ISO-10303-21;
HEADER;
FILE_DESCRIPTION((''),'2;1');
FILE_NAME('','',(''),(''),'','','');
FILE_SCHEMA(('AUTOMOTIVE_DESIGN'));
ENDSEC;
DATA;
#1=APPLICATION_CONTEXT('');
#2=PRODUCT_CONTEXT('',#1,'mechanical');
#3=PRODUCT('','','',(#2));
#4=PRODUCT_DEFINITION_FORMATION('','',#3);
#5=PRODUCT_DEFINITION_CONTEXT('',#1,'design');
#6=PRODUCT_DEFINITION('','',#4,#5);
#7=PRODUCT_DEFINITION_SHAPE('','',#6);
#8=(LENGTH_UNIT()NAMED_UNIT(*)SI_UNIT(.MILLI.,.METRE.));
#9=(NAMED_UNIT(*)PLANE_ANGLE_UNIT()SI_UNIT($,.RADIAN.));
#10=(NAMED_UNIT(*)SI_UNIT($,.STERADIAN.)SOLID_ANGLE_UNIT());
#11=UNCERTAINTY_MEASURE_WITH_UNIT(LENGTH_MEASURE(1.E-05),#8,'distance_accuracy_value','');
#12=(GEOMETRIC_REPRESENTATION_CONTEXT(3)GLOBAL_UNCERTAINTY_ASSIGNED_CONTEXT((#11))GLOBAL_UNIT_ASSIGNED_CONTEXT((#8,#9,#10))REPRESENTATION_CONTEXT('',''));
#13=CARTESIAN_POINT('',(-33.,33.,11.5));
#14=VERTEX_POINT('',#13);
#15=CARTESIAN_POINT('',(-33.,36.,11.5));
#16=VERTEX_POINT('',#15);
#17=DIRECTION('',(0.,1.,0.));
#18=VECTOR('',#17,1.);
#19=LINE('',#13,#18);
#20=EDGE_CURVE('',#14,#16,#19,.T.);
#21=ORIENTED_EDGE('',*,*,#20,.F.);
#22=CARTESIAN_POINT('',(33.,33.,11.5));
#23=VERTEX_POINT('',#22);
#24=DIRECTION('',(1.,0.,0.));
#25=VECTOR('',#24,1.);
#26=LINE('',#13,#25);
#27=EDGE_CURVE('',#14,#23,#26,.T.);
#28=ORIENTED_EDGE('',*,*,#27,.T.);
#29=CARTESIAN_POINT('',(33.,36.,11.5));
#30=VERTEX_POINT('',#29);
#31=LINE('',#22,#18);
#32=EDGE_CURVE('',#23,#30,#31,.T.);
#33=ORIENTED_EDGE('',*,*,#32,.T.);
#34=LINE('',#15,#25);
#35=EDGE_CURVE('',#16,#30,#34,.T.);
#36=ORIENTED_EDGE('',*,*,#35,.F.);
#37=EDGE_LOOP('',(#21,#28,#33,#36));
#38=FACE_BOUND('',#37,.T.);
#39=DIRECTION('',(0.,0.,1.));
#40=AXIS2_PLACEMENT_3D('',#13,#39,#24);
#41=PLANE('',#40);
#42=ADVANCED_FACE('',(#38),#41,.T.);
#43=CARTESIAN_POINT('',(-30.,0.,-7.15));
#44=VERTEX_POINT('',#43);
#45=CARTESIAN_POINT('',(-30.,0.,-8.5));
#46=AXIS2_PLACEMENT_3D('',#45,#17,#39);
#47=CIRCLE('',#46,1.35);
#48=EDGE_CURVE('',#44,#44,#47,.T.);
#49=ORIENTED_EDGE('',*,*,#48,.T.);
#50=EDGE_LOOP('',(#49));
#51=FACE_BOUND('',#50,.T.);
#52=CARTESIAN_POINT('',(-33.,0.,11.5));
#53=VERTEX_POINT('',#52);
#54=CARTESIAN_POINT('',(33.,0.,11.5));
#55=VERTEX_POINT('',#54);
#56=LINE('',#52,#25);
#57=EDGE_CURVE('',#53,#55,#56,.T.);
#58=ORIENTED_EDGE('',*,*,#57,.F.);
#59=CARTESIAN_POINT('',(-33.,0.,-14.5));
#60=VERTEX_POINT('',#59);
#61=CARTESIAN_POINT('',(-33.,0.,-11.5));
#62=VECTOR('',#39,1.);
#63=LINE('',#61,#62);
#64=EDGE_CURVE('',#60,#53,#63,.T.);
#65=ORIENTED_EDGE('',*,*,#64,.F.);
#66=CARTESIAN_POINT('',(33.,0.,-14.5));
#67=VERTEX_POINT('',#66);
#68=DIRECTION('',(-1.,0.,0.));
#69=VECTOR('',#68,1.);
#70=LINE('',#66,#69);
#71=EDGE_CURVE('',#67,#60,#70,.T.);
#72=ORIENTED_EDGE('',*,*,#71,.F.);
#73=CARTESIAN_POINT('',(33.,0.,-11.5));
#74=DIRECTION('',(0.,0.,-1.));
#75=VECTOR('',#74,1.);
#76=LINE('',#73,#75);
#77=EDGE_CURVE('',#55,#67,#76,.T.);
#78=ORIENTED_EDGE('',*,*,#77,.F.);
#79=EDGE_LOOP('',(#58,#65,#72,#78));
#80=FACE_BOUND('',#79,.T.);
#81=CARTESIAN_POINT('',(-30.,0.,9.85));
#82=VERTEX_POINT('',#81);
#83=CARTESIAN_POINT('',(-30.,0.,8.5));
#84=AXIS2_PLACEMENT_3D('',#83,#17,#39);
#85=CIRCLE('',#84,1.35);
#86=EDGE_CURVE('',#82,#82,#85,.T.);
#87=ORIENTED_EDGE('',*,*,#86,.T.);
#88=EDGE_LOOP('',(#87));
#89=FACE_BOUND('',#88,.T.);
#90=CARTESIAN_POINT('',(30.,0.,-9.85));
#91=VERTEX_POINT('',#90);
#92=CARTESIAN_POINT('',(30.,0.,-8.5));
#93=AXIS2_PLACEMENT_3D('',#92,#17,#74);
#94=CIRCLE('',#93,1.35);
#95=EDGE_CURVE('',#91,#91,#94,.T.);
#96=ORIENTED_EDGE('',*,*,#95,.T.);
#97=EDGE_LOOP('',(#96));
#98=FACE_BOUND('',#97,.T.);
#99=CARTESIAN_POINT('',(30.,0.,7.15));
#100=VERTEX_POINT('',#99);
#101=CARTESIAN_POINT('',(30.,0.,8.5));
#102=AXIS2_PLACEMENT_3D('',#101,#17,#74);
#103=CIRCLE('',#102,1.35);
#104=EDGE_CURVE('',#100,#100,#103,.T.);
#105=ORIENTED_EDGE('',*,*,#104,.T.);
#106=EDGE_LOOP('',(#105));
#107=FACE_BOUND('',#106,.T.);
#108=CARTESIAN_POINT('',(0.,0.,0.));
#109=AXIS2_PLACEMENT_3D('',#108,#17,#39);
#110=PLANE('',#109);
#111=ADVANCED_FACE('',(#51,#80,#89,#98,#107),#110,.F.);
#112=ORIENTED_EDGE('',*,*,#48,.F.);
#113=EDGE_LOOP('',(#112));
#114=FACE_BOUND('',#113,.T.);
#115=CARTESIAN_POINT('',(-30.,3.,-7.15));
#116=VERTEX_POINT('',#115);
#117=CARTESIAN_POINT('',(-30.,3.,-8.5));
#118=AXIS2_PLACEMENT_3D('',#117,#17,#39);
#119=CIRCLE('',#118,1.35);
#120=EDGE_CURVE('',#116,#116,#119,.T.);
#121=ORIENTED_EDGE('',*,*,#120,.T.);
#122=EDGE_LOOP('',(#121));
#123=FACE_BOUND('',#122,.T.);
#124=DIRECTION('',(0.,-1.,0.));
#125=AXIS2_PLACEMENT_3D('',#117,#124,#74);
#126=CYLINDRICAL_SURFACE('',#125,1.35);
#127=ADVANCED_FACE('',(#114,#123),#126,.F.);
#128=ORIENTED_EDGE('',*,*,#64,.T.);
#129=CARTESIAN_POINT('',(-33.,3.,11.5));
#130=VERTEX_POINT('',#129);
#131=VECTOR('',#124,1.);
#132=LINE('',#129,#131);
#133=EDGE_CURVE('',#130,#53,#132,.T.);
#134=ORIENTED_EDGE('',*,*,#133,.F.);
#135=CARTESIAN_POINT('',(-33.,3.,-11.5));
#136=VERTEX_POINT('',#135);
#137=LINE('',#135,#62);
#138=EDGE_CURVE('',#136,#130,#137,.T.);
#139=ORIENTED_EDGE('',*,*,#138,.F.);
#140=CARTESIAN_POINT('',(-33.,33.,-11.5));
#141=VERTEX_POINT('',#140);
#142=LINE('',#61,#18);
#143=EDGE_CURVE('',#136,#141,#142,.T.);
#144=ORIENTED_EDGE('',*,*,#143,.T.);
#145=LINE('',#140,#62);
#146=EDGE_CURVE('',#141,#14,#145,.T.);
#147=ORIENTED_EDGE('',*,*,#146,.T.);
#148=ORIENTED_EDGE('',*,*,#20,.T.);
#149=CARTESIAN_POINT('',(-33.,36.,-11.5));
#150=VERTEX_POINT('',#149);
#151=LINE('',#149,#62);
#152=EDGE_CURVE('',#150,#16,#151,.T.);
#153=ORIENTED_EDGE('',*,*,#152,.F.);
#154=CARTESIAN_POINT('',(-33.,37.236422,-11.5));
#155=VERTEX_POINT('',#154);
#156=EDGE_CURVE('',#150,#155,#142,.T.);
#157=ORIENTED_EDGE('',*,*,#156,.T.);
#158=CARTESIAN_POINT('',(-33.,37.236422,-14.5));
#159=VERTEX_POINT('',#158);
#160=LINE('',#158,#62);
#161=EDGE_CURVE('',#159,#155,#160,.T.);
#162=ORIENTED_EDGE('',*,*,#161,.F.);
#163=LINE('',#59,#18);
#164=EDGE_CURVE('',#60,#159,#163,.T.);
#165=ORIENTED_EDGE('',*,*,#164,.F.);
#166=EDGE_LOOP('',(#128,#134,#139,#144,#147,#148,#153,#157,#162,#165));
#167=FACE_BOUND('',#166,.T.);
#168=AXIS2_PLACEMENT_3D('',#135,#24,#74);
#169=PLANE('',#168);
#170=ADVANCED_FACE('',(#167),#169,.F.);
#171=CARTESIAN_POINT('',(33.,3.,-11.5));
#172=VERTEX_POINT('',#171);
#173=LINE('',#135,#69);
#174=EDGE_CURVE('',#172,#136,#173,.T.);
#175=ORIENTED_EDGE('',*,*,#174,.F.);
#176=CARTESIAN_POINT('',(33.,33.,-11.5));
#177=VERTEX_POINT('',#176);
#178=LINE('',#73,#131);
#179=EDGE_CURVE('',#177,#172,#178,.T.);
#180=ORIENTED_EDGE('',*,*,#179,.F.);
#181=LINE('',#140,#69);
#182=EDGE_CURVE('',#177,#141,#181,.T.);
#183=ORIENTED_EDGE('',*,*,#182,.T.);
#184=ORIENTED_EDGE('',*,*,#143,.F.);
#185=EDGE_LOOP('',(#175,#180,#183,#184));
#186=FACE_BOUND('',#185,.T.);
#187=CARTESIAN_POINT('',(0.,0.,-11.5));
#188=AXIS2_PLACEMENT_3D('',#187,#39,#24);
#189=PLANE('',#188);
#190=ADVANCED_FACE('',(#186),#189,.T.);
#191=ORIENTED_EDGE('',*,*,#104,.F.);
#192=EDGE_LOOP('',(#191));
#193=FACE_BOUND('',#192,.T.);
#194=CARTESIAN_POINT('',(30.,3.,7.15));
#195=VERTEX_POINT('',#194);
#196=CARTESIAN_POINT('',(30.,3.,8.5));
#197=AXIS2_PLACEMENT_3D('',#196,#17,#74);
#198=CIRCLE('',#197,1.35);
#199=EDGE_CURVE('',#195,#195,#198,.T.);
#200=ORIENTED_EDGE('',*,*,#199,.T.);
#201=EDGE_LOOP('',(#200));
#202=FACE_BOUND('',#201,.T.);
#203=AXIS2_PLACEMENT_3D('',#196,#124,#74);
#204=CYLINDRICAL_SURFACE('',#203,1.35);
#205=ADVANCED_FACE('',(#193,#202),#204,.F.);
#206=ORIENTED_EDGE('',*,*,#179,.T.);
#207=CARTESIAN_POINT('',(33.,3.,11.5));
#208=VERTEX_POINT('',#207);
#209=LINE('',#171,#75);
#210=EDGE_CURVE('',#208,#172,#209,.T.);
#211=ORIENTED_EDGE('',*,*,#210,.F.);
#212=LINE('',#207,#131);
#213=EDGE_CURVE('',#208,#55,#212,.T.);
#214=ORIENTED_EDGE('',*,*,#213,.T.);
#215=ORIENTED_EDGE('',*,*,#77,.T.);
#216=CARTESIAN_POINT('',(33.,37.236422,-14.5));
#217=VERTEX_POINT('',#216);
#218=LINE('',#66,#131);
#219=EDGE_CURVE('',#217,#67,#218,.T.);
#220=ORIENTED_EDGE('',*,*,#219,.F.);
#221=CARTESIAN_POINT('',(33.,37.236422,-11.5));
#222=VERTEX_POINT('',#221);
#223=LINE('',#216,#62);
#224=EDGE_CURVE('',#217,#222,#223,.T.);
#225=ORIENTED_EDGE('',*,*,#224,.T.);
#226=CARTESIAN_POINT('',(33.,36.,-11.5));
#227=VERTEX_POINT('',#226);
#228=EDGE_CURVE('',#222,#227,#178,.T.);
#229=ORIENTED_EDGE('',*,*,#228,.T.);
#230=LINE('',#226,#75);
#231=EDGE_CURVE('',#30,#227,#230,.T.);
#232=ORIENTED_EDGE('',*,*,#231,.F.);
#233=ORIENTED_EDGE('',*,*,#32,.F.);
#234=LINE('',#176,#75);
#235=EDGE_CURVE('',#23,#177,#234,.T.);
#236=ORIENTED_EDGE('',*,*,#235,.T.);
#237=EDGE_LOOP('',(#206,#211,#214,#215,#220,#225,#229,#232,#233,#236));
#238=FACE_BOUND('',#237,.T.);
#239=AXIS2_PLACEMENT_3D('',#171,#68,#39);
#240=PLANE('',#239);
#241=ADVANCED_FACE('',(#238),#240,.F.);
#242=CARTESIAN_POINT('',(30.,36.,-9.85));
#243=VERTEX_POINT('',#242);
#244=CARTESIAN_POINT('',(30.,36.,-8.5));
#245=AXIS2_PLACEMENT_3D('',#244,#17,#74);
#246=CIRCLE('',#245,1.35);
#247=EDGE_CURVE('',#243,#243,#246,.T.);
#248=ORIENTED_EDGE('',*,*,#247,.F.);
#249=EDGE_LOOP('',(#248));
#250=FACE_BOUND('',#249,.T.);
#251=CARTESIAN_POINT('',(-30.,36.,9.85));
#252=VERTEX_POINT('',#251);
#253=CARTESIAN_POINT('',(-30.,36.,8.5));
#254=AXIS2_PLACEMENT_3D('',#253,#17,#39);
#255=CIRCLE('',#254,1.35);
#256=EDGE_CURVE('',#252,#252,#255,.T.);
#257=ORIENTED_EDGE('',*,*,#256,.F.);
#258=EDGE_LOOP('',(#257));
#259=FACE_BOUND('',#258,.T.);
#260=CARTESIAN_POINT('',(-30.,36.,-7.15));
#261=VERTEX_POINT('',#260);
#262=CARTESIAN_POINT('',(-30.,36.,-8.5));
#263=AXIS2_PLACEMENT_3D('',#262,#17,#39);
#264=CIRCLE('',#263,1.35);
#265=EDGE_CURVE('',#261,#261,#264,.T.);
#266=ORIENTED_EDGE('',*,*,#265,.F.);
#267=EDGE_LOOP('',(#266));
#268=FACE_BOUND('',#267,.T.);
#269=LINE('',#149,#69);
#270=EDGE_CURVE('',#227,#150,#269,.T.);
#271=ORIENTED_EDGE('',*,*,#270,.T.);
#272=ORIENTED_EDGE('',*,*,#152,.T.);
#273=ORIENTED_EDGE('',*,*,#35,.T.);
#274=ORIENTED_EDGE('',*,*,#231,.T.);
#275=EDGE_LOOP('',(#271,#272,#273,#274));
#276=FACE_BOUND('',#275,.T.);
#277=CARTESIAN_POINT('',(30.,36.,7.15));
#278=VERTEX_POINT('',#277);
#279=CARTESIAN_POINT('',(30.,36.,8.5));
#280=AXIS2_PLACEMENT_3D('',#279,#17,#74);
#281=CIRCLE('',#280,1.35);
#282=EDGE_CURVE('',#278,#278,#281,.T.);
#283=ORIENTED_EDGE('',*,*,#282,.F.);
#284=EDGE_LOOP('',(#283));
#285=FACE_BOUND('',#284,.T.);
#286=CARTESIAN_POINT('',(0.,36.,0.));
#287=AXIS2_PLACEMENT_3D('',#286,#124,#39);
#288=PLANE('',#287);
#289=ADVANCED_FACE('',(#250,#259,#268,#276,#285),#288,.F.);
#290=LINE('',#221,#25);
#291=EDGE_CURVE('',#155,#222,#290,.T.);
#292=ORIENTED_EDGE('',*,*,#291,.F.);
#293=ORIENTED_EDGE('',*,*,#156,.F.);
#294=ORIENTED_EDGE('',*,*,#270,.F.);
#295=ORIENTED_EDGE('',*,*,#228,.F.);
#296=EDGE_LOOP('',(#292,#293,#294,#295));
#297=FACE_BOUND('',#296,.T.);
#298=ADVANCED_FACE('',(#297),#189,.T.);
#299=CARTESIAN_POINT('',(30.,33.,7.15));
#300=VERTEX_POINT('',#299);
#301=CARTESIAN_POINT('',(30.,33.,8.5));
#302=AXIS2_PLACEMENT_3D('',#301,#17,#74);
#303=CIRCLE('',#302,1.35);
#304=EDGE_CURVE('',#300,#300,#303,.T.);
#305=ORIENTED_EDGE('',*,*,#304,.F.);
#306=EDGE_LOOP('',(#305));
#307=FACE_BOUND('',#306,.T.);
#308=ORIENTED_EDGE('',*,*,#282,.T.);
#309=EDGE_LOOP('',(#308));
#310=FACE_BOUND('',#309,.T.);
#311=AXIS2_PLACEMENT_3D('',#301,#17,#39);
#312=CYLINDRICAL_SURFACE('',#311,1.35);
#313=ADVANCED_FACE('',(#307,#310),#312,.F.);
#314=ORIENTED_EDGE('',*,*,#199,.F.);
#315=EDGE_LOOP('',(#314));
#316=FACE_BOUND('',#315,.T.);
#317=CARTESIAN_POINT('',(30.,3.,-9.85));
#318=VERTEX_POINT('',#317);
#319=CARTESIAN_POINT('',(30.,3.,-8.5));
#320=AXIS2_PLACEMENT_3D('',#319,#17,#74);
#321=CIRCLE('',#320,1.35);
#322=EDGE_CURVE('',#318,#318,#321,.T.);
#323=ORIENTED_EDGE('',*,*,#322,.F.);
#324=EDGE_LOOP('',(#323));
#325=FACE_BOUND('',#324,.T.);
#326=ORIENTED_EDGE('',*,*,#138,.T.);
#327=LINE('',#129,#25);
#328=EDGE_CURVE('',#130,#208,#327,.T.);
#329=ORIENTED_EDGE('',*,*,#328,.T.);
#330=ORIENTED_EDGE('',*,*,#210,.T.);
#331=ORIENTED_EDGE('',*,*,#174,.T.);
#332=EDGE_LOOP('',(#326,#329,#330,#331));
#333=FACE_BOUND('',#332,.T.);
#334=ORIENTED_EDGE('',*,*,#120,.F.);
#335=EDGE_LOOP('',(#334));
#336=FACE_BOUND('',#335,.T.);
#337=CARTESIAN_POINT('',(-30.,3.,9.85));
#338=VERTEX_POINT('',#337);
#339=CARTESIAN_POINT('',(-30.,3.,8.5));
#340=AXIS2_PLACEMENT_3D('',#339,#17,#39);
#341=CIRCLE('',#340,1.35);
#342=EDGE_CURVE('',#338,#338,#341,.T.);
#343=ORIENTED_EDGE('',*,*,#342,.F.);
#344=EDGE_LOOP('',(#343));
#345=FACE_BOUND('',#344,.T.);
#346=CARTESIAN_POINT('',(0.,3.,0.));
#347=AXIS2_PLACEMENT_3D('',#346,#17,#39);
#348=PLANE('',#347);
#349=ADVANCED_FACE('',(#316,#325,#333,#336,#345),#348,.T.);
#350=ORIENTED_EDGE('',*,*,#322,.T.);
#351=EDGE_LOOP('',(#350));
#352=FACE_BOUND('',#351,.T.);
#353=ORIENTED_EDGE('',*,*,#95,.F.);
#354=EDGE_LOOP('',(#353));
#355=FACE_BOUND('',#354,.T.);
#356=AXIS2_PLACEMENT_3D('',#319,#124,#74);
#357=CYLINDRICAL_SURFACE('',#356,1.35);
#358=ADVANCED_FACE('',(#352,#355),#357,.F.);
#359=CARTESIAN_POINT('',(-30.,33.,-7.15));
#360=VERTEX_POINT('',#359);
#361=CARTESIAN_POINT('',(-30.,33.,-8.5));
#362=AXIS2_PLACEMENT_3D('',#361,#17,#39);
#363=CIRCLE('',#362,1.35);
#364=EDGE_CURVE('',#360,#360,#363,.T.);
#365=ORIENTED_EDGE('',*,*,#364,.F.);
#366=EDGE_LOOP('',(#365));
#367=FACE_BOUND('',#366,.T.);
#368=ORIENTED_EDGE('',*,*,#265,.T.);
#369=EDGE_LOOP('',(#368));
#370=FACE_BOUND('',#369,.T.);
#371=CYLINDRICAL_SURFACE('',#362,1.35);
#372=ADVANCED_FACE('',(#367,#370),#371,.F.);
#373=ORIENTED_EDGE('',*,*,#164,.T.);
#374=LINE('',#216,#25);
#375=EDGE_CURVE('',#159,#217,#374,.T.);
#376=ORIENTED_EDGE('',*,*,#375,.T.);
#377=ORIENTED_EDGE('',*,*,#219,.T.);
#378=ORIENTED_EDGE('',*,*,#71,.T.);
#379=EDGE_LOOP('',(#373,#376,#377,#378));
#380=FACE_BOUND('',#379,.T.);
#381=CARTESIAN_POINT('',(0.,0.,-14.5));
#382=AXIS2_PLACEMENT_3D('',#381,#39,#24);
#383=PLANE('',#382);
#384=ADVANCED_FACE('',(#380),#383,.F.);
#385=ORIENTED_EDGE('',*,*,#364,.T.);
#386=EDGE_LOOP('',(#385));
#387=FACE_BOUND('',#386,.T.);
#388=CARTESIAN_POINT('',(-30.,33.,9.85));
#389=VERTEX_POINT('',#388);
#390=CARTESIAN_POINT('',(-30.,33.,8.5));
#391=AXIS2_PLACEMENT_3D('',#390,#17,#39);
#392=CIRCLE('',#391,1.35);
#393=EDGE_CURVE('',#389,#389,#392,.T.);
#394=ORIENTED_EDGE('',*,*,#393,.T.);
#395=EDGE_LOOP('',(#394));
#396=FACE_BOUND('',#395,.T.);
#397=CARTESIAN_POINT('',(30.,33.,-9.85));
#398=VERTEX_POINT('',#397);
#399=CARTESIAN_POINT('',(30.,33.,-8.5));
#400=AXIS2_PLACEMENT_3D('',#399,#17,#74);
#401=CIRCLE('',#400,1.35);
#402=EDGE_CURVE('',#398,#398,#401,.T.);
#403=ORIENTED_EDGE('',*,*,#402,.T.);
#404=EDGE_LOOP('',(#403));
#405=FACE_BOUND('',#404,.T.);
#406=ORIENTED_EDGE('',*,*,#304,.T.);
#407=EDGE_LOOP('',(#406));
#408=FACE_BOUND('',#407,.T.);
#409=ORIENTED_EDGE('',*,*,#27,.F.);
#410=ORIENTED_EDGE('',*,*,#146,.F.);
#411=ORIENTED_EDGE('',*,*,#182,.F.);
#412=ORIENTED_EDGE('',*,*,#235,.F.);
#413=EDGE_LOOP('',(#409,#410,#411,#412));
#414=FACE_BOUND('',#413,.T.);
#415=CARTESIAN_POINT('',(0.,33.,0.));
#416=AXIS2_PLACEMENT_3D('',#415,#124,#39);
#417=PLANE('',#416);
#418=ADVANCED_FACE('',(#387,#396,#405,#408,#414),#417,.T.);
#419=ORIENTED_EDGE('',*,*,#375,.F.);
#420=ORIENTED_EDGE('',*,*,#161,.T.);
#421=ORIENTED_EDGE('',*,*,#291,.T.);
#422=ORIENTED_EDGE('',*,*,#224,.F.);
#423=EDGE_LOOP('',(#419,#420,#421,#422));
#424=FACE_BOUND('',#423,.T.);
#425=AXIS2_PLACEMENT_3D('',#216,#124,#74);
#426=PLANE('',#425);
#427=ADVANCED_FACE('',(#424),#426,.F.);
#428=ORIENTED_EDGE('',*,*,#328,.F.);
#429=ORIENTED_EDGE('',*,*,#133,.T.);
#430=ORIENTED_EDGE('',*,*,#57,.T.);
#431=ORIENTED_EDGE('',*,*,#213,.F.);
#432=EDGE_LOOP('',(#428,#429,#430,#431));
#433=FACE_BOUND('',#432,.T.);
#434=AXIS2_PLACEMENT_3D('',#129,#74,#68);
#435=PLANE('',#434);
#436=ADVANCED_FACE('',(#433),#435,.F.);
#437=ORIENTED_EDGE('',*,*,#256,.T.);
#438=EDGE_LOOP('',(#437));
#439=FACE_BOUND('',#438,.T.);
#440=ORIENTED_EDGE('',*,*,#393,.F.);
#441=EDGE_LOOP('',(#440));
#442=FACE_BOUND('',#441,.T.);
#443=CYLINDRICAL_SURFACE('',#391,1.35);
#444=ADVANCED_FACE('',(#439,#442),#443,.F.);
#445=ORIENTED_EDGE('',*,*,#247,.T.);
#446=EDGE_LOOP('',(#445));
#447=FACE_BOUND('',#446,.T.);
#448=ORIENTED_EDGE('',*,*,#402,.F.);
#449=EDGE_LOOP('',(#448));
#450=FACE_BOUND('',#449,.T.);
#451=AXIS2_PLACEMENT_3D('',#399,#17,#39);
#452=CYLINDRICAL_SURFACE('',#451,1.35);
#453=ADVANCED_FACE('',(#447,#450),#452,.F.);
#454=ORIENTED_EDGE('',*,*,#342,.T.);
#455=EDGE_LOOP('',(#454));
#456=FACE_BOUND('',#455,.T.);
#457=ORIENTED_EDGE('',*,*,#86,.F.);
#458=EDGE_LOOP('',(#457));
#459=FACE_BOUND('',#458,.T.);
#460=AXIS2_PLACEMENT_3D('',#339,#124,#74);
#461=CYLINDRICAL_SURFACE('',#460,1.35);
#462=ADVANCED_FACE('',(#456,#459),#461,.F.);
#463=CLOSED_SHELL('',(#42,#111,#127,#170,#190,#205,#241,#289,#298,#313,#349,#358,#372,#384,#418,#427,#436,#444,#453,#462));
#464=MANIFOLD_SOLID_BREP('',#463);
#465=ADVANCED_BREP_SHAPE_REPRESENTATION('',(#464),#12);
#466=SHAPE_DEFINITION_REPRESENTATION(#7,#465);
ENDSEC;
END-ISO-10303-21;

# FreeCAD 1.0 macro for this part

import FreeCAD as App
import Part
import Sketcher

V = App.Vector

doc = App.newDocument("Part")
body = doc.addObject("PartDesign::Body", "Body")

sketch1 = body.newObject("Sketcher::SketchObject", "Sketch")
sketch1.AttachmentSupport = (doc.getObject("XZ_Plane"), [""])
sketch1.MapMode = "FlatFace"
sketch1.addGeometry([
    Part.LineSegment(V(-33, -11.5, 0), V(-33, 11.5, 0)),
    Part.LineSegment(V(-33, 11.5, 0), V(33, 11.5, 0)),
    Part.LineSegment(V(33, 11.5, 0), V(33, -11.5, 0)),
    Part.LineSegment(V(33, -11.5, 0), V(-33, -11.5, 0)),
    Part.Circle(V(-30, 8.5, 0), V(0, 0, 1), 1.35),
    Part.Circle(V(30, 8.5, 0), V(0, 0, 1), 1.35),
    Part.Circle(V(-30, -8.5, 0), V(0, 0, 1), 1.35),
    Part.Circle(V(30, -8.5, 0), V(0, 0, 1), 1.35),
], False)
sketch1.addConstraint([
    Sketcher.Constraint("Coincident", 0, 2, 1, 1),
    Sketcher.Constraint("Coincident", 1, 2, 2, 1),
    Sketcher.Constraint("Coincident", 2, 2, 3, 1),
    Sketcher.Constraint("Coincident", 3, 2, 0, 1),
    Sketcher.Constraint("Vertical", 0),
    Sketcher.Constraint("Horizontal", 1),
    Sketcher.Constraint("Vertical", 2),
    Sketcher.Constraint("Horizontal", 3),
    Sketcher.Constraint("Equal", 4, 5),
    Sketcher.Constraint("Equal", 5, 6),
    Sketcher.Constraint("Equal", 6, 7),
    Sketcher.Constraint("Symmetric", 5, 3, 6, 3, -1, 1),
    Sketcher.Constraint("Symmetric", 4, 3, 7, 3, -1, 1),
    Sketcher.Constraint("Symmetric", 0, 2, 2, 2, -1, 1),
    Sketcher.Constraint("Symmetric", 4, 3, 5, 3, -2),
    Sketcher.Constraint("Diameter", 4, 2.7),
    Sketcher.Constraint("DistanceX", 1, 1, 1, 2, 66.0),
    Sketcher.Constraint("DistanceY", 0, 1, 0, 2, 23.0),
    Sketcher.Constraint("DistanceX", 4, 3, -1, 1, 30.0),
    Sketcher.Constraint("DistanceY", 6, 3, 4, 3, 17.0),
])
pad1 = body.newObject("PartDesign::Pad", "Pad")
pad1.Profile = sketch1
pad1.Length = 3
pad1.Reversed = True

sketch2 = body.newObject("Sketcher::SketchObject", "Sketch001")
sketch2.AttachmentSupport = (doc.getObject("XY_Plane"), [""])
sketch2.MapMode = "FlatFace"
sketch2.AttachmentOffset = App.Placement(V(0, 0, -11.5), App.Rotation())
sketch2.addGeometry([
    Part.LineSegment(V(33, 37.236422, 0), V(33, 0, 0)),
    Part.LineSegment(V(33, 0, 0), V(-33, 0, 0)),
    Part.LineSegment(V(-33, 0, 0), V(-33, 37.236422, 0)),
    Part.LineSegment(V(-33, 37.236422, 0), V(33, 37.236422, 0)),
], False)
sketch2.addConstraint([
    Sketcher.Constraint("Coincident", 0, 2, 1, 1),
    Sketcher.Constraint("Coincident", 1, 2, 2, 1),
    Sketcher.Constraint("Coincident", 2, 2, 3, 1),
    Sketcher.Constraint("Coincident", 3, 2, 0, 1),
    Sketcher.Constraint("Vertical", 0),
    Sketcher.Constraint("Horizontal", 1),
    Sketcher.Constraint("Vertical", 2),
    Sketcher.Constraint("Horizontal", 3),
    Sketcher.Constraint("Symmetric", 0, 2, 1, 2, -1, 1),
    Sketcher.Constraint("DistanceX", 1, 2, 1, 1, 66.0),
    Sketcher.Constraint("DistanceY", 0, 2, 0, 1, 37.236422),
])
pad2 = body.newObject("PartDesign::Pad", "Pad001")
pad2.Profile = sketch2
pad2.Length = 3
pad2.Reversed = True
doc.recompute()

datumplane = body.newObject("PartDesign::Plane", "DatumPlane")
datumplane.AttachmentSupport = (doc.getObject("XZ_Plane"), [""])
datumplane.MapMode = "FlatFace"
datumplane.AttachmentOffset = App.Placement(V(0, 0, -18), App.Rotation())
mirrored = body.newObject("PartDesign::Mirrored", "Mirrored")
mirrored.Originals = [pad1]
mirrored.MirrorPlane = (datumplane, [""])
body.Tip = mirrored

doc.recompute()
